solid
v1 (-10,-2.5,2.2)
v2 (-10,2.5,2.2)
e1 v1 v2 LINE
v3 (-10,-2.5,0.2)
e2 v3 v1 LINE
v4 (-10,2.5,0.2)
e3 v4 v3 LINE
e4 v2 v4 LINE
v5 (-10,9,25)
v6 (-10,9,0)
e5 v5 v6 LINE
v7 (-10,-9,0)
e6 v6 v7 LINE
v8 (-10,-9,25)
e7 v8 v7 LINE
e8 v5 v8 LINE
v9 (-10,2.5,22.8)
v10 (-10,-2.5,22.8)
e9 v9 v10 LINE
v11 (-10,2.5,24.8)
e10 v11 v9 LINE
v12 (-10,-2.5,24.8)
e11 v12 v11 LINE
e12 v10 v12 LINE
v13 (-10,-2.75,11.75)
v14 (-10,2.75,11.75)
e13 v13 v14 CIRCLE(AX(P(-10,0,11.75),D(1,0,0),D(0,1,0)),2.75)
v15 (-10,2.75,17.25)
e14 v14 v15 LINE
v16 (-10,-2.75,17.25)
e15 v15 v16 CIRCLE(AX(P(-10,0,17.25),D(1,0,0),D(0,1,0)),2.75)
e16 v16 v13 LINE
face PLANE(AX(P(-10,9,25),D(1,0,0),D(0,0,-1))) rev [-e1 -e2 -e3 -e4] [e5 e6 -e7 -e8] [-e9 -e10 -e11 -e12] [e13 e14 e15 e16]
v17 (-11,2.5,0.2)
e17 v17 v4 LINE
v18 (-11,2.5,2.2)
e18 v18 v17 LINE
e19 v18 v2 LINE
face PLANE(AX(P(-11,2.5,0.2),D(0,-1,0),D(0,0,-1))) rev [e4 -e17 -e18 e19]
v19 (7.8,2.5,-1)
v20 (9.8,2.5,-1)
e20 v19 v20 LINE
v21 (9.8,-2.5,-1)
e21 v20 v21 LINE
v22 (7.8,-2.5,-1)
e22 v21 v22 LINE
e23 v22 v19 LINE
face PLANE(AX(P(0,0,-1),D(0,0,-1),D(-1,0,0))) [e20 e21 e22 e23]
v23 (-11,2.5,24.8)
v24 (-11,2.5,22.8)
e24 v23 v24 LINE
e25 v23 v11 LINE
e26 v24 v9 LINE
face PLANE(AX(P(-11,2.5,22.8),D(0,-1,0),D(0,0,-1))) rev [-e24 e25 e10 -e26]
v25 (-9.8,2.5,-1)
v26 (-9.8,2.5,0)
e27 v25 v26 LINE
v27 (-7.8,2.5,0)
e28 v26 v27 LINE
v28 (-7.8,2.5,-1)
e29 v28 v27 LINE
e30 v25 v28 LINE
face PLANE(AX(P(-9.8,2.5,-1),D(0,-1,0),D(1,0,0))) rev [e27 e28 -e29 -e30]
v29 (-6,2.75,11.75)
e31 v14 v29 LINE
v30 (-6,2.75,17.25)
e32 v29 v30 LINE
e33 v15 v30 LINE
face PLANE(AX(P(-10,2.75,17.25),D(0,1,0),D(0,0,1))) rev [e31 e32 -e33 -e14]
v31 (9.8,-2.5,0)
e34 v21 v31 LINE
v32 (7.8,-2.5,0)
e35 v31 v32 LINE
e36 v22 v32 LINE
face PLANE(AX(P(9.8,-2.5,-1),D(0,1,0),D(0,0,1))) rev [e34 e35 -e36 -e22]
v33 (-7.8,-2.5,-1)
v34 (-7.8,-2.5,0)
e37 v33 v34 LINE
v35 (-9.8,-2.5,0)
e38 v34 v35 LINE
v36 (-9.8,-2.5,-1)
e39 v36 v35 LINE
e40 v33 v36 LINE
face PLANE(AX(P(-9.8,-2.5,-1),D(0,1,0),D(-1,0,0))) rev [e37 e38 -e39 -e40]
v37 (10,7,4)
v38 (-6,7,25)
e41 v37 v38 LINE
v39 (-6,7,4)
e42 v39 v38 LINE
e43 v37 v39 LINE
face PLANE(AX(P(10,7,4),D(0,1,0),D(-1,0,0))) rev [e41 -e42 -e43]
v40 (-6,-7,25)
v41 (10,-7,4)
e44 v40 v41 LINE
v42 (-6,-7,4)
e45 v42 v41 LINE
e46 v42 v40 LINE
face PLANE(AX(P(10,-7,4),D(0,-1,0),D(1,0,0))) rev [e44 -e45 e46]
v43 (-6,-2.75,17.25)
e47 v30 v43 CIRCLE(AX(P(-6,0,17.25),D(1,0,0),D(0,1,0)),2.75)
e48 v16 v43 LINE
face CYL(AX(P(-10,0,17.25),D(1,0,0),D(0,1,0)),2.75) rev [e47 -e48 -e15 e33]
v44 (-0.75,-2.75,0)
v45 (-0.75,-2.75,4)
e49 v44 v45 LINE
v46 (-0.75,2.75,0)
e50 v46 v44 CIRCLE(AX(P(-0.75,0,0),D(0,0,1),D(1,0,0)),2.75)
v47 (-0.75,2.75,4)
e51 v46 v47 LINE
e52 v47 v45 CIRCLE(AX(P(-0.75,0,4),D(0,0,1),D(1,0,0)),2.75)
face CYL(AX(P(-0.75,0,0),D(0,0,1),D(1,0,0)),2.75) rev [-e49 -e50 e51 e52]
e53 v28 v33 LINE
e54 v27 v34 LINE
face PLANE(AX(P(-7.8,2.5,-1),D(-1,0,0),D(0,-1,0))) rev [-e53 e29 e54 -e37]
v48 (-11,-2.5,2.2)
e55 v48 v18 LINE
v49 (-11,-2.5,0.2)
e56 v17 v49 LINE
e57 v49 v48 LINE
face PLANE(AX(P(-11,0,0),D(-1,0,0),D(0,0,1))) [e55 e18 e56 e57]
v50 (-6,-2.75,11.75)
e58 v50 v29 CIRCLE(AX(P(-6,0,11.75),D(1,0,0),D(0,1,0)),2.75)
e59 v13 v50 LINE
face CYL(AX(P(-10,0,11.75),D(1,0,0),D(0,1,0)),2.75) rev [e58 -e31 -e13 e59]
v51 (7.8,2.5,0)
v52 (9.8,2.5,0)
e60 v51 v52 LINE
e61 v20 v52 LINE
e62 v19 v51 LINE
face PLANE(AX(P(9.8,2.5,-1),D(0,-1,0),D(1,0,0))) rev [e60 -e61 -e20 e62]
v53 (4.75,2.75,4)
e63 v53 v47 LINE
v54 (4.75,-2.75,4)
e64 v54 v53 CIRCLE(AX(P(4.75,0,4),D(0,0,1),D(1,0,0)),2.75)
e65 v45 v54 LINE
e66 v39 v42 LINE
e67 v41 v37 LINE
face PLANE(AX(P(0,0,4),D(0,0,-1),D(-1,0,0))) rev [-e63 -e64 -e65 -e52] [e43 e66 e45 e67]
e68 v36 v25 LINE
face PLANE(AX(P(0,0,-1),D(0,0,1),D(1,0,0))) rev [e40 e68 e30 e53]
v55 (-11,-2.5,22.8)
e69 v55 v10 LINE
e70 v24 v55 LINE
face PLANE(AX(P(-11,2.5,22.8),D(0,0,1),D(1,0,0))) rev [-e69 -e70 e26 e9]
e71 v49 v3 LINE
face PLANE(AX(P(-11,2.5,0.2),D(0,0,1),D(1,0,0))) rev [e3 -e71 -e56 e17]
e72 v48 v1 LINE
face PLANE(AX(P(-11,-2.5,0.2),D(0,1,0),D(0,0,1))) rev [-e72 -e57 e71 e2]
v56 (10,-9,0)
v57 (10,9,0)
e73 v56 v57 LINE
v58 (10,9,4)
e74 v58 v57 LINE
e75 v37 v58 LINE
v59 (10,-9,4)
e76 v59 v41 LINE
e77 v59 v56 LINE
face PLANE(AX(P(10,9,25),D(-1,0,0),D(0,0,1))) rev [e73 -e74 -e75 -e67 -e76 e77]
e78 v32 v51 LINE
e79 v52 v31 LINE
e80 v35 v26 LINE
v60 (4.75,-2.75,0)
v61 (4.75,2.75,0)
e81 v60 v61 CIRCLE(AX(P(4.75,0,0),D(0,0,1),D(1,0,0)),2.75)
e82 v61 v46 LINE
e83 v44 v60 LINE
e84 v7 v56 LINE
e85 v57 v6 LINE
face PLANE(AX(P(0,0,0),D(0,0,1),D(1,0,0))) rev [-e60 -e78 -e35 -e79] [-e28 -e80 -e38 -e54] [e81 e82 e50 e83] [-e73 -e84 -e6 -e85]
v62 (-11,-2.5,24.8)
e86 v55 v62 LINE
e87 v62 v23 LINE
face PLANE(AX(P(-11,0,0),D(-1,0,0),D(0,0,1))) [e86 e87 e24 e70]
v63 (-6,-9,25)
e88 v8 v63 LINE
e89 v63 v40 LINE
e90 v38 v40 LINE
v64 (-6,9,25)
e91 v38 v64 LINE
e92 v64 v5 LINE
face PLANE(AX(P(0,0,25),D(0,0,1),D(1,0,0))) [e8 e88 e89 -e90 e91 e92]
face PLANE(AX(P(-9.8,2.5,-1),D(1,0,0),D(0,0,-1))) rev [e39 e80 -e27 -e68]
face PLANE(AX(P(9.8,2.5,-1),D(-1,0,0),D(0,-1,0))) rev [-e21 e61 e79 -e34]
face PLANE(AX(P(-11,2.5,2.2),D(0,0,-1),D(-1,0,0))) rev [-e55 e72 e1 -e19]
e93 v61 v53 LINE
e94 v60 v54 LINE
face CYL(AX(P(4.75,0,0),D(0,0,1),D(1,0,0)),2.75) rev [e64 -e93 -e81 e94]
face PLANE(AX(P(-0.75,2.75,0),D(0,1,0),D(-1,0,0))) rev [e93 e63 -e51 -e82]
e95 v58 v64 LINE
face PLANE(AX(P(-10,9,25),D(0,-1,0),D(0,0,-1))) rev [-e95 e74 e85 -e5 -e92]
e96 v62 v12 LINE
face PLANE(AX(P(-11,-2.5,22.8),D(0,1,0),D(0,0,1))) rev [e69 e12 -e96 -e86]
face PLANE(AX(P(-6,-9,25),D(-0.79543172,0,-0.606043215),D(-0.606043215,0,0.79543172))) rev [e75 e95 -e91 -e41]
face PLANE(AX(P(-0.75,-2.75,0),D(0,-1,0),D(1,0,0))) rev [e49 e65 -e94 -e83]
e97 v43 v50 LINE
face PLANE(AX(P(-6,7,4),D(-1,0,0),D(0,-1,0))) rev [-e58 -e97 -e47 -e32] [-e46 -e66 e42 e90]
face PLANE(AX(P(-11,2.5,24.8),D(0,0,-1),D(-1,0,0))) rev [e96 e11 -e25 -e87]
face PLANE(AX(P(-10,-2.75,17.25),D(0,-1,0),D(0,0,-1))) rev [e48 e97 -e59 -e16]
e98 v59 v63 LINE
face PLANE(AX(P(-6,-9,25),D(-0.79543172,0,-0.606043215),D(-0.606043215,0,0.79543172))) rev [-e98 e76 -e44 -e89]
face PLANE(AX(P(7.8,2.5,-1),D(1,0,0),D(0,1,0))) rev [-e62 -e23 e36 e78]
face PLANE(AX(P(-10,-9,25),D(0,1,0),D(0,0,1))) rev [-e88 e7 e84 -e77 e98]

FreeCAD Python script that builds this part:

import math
import FreeCAD as App
import Part
import Sketcher


def add_polygon(sketch, points):
    """Adds a closed chain of lines whose ends are joined by coincident constraints."""
    first, n = sketch.GeometryCount, len(points)
    for a, b in zip(points, points[1:] + points[:1]):
        sketch.addGeometry(Part.LineSegment(App.Vector(*a, 0), App.Vector(*b, 0)), False)
    for i in range(n):
        sketch.addConstraint(Sketcher.Constraint("Coincident", first + i, 2, first + (i + 1) % n, 1))

doc = App.newDocument("Part")
body = doc.addObject("PartDesign::Body", "Body")

# Sketch on XY plane
sketch1 = doc.addObject("Sketcher::SketchObject", "Sketch")
body.addObject(sketch1)
sketch1.AttachmentSupport = (doc.XY_Plane, [""])
sketch1.MapMode = "FlatFace"
add_polygon(sketch1, [(-10, 9), (-10, -9), (10, -9), (10, 9)])  # lines 0-3
sketch1.addConstraint([
    Sketcher.Constraint("Vertical", 0),
    Sketcher.Constraint("Horizontal", 1),
    Sketcher.Constraint("Vertical", 2),
    Sketcher.Constraint("Horizontal", 3),
    Sketcher.Constraint("Symmetric", 0, 2, 2, 2, -1, 1),
    Sketcher.Constraint("DistanceX", 1, 1, 1, 2, 20.0),
    Sketcher.Constraint("DistanceY", 0, 2, 0, 1, 18.0),
])
pad1 = doc.addObject("PartDesign::Pad", "Pad")
body.addObject(pad1)
pad1.Profile = sketch1
pad1.Length = 25

# Sketch on XY plane
sketch2 = doc.addObject("Sketcher::SketchObject", "Sketch001")
body.addObject(sketch2)
sketch2.AttachmentSupport = (doc.XY_Plane, [""])
sketch2.MapMode = "FlatFace"
sketch2.AttachmentOffset = App.Placement(App.Vector(0, 0, 25), App.Rotation())
add_polygon(sketch2, [(-6, 7), (-6, -7), (10, -7), (10, 7)])  # lines 0-3
sketch2.addConstraint([
    Sketcher.Constraint("Vertical", 0),
    Sketcher.Constraint("Horizontal", 1),
    Sketcher.Constraint("Vertical", 2),
    Sketcher.Constraint("Horizontal", 3),
    Sketcher.Constraint("DistanceX", 1, 1, 1, 2, 16.0),
    Sketcher.Constraint("DistanceY", 0, 2, 0, 1, 14.0),
    Sketcher.Constraint("DistanceX", 0, 2, -1, 1, 6.0),
    Sketcher.Constraint("DistanceY", 0, 2, -1, 1, 7.0),
])
pocket1 = doc.addObject("PartDesign::Pocket", "Pocket")
body.addObject(pocket1)
pocket1.Profile = sketch2
pocket1.Length = 21

# Sketch on XZ plane
sketch3 = doc.addObject("Sketcher::SketchObject", "Sketch002")
body.addObject(sketch3)
sketch3.AttachmentSupport = (doc.XZ_Plane, [""])
sketch3.MapMode = "FlatFace"
sketch3.AttachmentOffset = App.Placement(App.Vector(0, 0, 7), App.Rotation())
add_polygon(sketch3, [(10, 4), (-6, 25), (10, 25)])  # lines 0-2
sketch3.addConstraint([
    Sketcher.Constraint("Horizontal", 1),
    Sketcher.Constraint("Vertical", 2),
    Sketcher.Constraint("DistanceX", 1, 1, 1, 2, 16.0),
    Sketcher.Constraint("DistanceY", 2, 2, 2, 1, 21.0),
    Sketcher.Constraint("DistanceX", 0, 2, -1, 1, 6.0),
    Sketcher.Constraint("DistanceY", -1, 1, 0, 2, 25.0),
])
pocket2 = doc.addObject("PartDesign::Pocket", "Pocket001")
body.addObject(pocket2)
pocket2.Profile = sketch3
pocket2.Type = "ThroughAll"
pocket2.Midplane = True

# Sketch on XY plane
sketch4 = doc.addObject("Sketcher::SketchObject", "Sketch003")
body.addObject(sketch4)
sketch4.AttachmentSupport = (doc.XY_Plane, [""])
sketch4.MapMode = "FlatFace"
sketch4.AttachmentOffset = App.Placement(App.Vector(0, 0, 4), App.Rotation())
sketch4.addGeometry([
    Part.LineSegment(App.Vector(4.8, 2.8, 0), App.Vector(-0.8, 2.8, 0)),
    Part.ArcOfCircle(Part.Circle(App.Vector(-0.8, 0, 0), App.Vector(0, 0, 1), 2.8), math.radians(90), math.radians(270)),
    Part.LineSegment(App.Vector(-0.8, -2.8, 0), App.Vector(4.8, -2.8, 0)),
    Part.ArcOfCircle(Part.Circle(App.Vector(4.8, 0, 0), App.Vector(0, 0, 1), 2.8), math.radians(-90), math.radians(90)),
], False)
sketch4.addConstraint([
    Sketcher.Constraint("Tangent", 0, 2, 1, 1),
    Sketcher.Constraint("Tangent", 1, 2, 2, 1),
    Sketcher.Constraint("Tangent", 2, 2, 3, 1),
    Sketcher.Constraint("Tangent", 3, 2, 0, 1),
    Sketcher.Constraint("Horizontal", 0),
    Sketcher.Constraint("Horizontal", 2),
    Sketcher.Constraint("PointOnObject", 1, 3, -1),
    Sketcher.Constraint("Radius", 1, 2.75),
    Sketcher.Constraint("DistanceX", 0, 2, 0, 1, 5.5),
    Sketcher.Constraint("DistanceX", 1, 3, -1, 1, 0.75),
])
pocket3 = doc.addObject("PartDesign::Pocket", "Pocket002")
body.addObject(pocket3)
pocket3.Profile = sketch4
pocket3.Type = "ThroughAll"
pocket3.Midplane = True

# Sketch on YZ plane
sketch5 = doc.addObject("Sketcher::SketchObject", "Sketch004")
body.addObject(sketch5)
sketch5.AttachmentSupport = (doc.YZ_Plane, [""])
sketch5.MapMode = "FlatFace"
sketch5.AttachmentOffset = App.Placement(App.Vector(0, 0, -6), App.Rotation())
sketch5.addGeometry([
    Part.LineSegment(App.Vector(2.8, 11.8, 0), App.Vector(2.8, 17.2, 0)),
    Part.ArcOfCircle(Part.Circle(App.Vector(0, 17.2, 0), App.Vector(0, 0, 1), 2.8), math.radians(0), math.radians(180)),
    Part.LineSegment(App.Vector(-2.8, 17.2, 0), App.Vector(-2.8, 11.8, 0)),
    Part.ArcOfCircle(Part.Circle(App.Vector(0, 11.8, 0), App.Vector(0, 0, 1), 2.8), math.radians(180), math.radians(360)),
], False)
sketch5.addConstraint([
    Sketcher.Constraint("Tangent", 0, 2, 1, 1),
    Sketcher.Constraint("Tangent", 1, 2, 2, 1),
    Sketcher.Constraint("Tangent", 2, 2, 3, 1),
    Sketcher.Constraint("Tangent", 3, 2, 0, 1),
    Sketcher.Constraint("Vertical", 0),
    Sketcher.Constraint("Vertical", 2),
    Sketcher.Constraint("PointOnObject", 1, 3, -2),
    Sketcher.Constraint("Radius", 1, 2.75),
    Sketcher.Constraint("DistanceY", 0, 1, 0, 2, 5.5),
    Sketcher.Constraint("DistanceY", -1, 1, 1, 3, 17.25),
])
pocket4 = doc.addObject("PartDesign::Pocket", "Pocket003")
body.addObject(pocket4)
pocket4.Profile = sketch5
pocket4.Type = "ThroughAll"
pocket4.Midplane = True

# Sketch on XY plane
sketch6 = doc.addObject("Sketcher::SketchObject", "Sketch005")
body.addObject(sketch6)
sketch6.AttachmentSupport = (doc.XY_Plane, [""])
sketch6.MapMode = "FlatFace"
add_polygon(sketch6, [(9.8, 2.5), (9.8, -2.5), (7.8, -2.5), (7.8, 2.5)])  # lines 0-3
add_polygon(sketch6, [(-7.8, 2.5), (-7.8, -2.5), (-9.8, -2.5), (-9.8, 2.5)])  # lines 4-7
sketch6.addConstraint([
    Sketcher.Constraint("Vertical", 0),
    Sketcher.Constraint("Horizontal", 1),
    Sketcher.Constraint("Vertical", 2),
    Sketcher.Constraint("Horizontal", 3),
    Sketcher.Constraint("Vertical", 4),
    Sketcher.Constraint("Horizontal", 5),
    Sketcher.Constraint("Vertical", 6),
    Sketcher.Constraint("Horizontal", 7),
    Sketcher.Constraint("Symmetric", 2, 2, 4, 2, -1, 1),
    Sketcher.Constraint("Symmetric", 0, 2, 6, 2, -1, 1),
    Sketcher.Constraint("Horizontal", 1, 2, 4, 2),
    Sketcher.Constraint("DistanceX", 1, 2, 1, 1, 2.0),
    Sketcher.Constraint("DistanceY", 0, 2, 0, 1, 5.0),
    Sketcher.Constraint("DistanceX", -1, 1, 0, 2, 9.8),
])
pad2 = doc.addObject("PartDesign::Pad", "Pad001")
body.addObject(pad2)
pad2.Profile = sketch6
pad2.Length = 1
pad2.Reversed = True

# Sketch on YZ plane
sketch7 = doc.addObject("Sketcher::SketchObject", "Sketch006")
body.addObject(sketch7)
sketch7.AttachmentSupport = (doc.YZ_Plane, [""])
sketch7.MapMode = "FlatFace"
sketch7.AttachmentOffset = App.Placement(App.Vector(0, 0, -10), App.Rotation())
add_polygon(sketch7, [(2.5, 0.2), (-2.5, 0.2), (-2.5, 2.2), (2.5, 2.2)])  # lines 0-3
add_polygon(sketch7, [(2.5, 22.8), (-2.5, 22.8), (-2.5, 24.8), (2.5, 24.8)])  # lines 4-7
sketch7.addConstraint([
    Sketcher.Constraint("Horizontal", 0),
    Sketcher.Constraint("Vertical", 1),
    Sketcher.Constraint("Horizontal", 2),
    Sketcher.Constraint("Vertical", 3),
    Sketcher.Constraint("Horizontal", 4),
    Sketcher.Constraint("Vertical", 5),
    Sketcher.Constraint("Horizontal", 6),
    Sketcher.Constraint("Vertical", 7),
    Sketcher.Constraint("Vertical", 1, 2, 4, 2),
    Sketcher.Constraint("Vertical", 3, 2, 6, 2),
    Sketcher.Constraint("Equal", 3, 5),
    Sketcher.Constraint("DistanceX", 0, 2, 0, 1, 5.0),
    Sketcher.Constraint("DistanceY", 1, 1, 1, 2, 2.0),
    Sketcher.Constraint("DistanceX", 0, 2, -1, 1, 2.5),
    Sketcher.Constraint("DistanceY", -1, 1, 0, 2, 0.2),
    Sketcher.Constraint("DistanceY", -1, 1, 4, 2, 22.8),
])
pad3 = doc.addObject("PartDesign::Pad", "Pad002")
body.addObject(pad3)
pad3.Profile = sketch7
pad3.Length = 1
pad3.Reversed = True

doc.recompute()
